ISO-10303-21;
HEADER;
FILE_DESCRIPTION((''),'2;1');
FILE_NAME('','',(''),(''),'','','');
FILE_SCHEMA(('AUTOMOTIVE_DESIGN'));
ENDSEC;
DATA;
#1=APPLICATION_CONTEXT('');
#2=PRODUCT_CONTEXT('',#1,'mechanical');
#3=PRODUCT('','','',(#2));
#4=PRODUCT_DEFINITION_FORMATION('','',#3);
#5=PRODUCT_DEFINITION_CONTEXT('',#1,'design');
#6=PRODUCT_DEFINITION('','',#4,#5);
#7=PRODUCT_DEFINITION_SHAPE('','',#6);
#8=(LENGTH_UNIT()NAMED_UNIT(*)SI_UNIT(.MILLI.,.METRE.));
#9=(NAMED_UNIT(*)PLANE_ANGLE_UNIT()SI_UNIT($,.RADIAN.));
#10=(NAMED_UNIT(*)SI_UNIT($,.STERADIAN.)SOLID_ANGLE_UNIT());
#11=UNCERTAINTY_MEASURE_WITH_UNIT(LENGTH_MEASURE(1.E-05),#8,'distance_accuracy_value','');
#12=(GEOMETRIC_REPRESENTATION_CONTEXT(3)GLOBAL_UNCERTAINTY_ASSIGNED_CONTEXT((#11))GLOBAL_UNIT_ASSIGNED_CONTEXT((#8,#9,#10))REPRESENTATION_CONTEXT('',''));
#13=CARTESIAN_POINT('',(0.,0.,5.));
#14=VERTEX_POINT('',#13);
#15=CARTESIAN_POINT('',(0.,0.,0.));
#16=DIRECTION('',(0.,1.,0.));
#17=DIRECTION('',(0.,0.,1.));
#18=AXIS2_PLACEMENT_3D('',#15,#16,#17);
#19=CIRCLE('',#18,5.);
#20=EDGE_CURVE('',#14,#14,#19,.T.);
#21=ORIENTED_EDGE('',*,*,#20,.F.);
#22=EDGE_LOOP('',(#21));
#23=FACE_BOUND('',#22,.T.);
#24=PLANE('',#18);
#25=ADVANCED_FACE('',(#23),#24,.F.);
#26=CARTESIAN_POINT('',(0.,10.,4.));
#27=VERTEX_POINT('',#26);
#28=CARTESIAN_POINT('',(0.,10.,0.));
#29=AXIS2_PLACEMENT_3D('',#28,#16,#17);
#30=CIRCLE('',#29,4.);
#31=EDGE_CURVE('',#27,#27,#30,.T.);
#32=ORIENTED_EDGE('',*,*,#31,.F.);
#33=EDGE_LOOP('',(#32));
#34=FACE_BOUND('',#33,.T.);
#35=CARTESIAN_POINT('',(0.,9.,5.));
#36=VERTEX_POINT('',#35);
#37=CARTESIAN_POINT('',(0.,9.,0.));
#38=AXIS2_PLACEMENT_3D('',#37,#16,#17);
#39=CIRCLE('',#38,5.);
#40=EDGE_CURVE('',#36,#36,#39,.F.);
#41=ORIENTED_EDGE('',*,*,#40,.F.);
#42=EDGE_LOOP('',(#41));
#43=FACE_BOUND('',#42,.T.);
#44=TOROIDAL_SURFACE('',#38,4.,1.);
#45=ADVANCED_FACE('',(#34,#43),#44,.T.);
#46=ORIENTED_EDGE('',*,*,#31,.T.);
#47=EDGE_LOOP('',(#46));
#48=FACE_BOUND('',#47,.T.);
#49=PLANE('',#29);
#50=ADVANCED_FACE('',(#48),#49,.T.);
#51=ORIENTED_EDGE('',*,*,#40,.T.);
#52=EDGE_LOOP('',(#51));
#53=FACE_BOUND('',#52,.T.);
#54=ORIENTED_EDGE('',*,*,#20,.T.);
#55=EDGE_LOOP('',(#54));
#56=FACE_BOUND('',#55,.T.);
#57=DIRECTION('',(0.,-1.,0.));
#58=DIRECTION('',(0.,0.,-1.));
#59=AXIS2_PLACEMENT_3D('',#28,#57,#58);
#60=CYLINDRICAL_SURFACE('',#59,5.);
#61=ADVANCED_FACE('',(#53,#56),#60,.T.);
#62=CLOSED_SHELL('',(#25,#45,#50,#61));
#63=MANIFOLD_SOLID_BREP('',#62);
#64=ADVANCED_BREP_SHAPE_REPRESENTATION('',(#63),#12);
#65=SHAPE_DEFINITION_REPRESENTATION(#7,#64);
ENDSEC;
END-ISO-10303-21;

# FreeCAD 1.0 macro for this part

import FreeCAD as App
import Part
import Sketcher

V = App.Vector
Q = App.Units.Quantity


def edges_at(feature, points):
    """Names of the edges that pass closest to the given points."""
    edges = feature.Shape.Edges
    near = lambda p: min(range(len(edges)), key=lambda i: edges[i].distToShape(Part.Vertex(*p))[0])
    return sorted({f"Edge{near(p) + 1}" for p in points})

doc = App.newDocument("Part")
params = doc.addObject("Spreadsheet::Sheet", "Params")
for row, (alias, value) in enumerate([
    ("sketch1_diameter", "10 mm"),
    ("pad1_length", "10 mm"),
    ("fillet_radius", "1 mm"),
], start=1):
    params.set(f"A{row}", alias)
    params.set(f"B{row}", "=" + value)
    params.setAlias(f"B{row}", alias)

body = doc.addObject("PartDesign::Body", "Body")

# Sketch on XZ plane
sketch1 = body.newObject("Sketcher::SketchObject", "Sketch")
sketch1.AttachmentSupport = (doc.getObject("XZ_Plane"), [""])
sketch1.MapMode = "FlatFace"
sketch1.addGeometry(Part.Circle(V(0, 0, 0), V(0, 0, 1), 5), False)
sketch1.addConstraint([
    Sketcher.Constraint("Coincident", 0, 3, -1, 1),
    Sketcher.Constraint("Diameter", 0, Q("10 mm")),
])
sketch1.setExpression("Constraints[1]", "Params.sketch1_diameter")
pad1 = body.newObject("PartDesign::Pad", "Pad")
pad1.Profile = sketch1
pad1.setExpression("Length", "Params.pad1_length")
pad1.Reversed = True
doc.recompute()

fillet = body.newObject("PartDesign::Fillet", "Fillet")
fillet.Base = (pad1, edges_at(pad1, [(0, 10, -5)]))
fillet.setExpression("Radius", "Params.fillet_radius")

doc.recompute()
